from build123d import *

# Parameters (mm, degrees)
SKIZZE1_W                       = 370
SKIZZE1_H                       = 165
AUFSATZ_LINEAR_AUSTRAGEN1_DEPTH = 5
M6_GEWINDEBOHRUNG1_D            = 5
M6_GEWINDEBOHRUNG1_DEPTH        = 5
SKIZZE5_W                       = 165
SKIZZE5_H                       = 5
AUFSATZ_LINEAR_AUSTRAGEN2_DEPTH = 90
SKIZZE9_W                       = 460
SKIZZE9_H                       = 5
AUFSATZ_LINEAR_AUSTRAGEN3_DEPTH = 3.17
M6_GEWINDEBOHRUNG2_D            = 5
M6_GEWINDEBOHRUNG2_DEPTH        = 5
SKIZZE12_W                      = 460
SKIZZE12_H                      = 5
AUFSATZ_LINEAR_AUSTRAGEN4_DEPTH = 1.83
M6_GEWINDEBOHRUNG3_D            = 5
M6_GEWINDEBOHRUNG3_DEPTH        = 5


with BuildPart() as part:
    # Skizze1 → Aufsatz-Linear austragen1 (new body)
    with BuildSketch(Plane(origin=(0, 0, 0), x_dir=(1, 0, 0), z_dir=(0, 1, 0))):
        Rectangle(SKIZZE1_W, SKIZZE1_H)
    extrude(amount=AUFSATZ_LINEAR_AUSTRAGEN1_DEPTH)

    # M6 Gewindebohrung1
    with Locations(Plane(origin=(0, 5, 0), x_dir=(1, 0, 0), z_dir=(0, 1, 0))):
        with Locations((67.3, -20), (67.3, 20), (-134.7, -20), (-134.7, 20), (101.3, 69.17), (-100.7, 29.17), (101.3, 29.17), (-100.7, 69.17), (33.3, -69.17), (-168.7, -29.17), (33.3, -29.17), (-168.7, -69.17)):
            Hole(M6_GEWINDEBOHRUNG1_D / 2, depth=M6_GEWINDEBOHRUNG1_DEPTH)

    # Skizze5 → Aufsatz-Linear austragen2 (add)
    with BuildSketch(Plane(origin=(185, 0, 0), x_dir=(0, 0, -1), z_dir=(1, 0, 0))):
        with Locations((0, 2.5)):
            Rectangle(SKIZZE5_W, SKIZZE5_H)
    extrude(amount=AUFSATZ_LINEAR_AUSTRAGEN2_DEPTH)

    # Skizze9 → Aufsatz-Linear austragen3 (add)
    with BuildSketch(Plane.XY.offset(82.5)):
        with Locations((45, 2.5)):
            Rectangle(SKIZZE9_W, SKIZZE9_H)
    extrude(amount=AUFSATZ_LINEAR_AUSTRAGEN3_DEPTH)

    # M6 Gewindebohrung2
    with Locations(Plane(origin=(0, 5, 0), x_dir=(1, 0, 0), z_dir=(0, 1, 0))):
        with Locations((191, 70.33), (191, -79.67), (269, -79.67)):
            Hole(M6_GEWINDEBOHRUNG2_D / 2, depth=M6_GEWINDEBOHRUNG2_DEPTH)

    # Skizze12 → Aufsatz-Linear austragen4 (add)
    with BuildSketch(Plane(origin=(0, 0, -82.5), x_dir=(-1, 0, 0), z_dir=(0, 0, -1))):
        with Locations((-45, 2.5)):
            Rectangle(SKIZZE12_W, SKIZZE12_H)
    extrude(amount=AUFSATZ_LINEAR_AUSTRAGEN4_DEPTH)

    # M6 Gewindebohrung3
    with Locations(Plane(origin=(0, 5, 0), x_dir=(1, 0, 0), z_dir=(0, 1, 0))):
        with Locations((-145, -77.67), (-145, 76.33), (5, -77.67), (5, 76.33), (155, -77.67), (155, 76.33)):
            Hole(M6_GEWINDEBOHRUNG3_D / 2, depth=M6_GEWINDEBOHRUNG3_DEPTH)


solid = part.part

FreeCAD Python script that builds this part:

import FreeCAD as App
import Part
import Sketcher
Q = App.Units.Quantity


def add_polygon(sketch, points):
    """Adds a closed chain of lines whose ends are joined by coincident constraints."""
    first, n = sketch.GeometryCount, len(points)
    for a, b in zip(points, points[1:] + points[:1]):
        sketch.addGeometry(Part.LineSegment(App.Vector(*a, 0), App.Vector(*b, 0)), False)
    for i in range(n):
        sketch.addConstraint(Sketcher.Constraint("Coincident", first + i, 2, first + (i + 1) % n, 1))

doc = App.newDocument("Part")
params = doc.addObject("Spreadsheet::Sheet", "Params")
for row, (alias, value) in enumerate([
    ("sketch1_width", "370 mm"),
    ("sketch1_height", "165 mm"),
    ("pad1_length", "5 mm"),
    ("sketch2_diameter", "5 mm"),
    ("hole_diameter", "5 mm"),
    ("hole_depth", "5 mm"),
    ("sketch3_width", "5 mm"),
    ("sketch3_height", "165 mm"),
    ("pad2_length", "90 mm"),
    ("sketch4_width", "460 mm"),
    ("sketch4_height", "5 mm"),
    ("pad3_length", "3.17 mm"),
    ("sketch5_diameter", "5 mm"),
    ("hole2_diameter", "5 mm"),
    ("hole2_depth", "5 mm"),
    ("sketch6_width", "460 mm"),
    ("sketch6_height", "5 mm"),
    ("pad4_length", "1.83 mm"),
    ("sketch7_diameter", "5 mm"),
    ("hole3_diameter", "5 mm"),
    ("hole3_depth", "5 mm"),
], start=1):
    params.set(f"A{row}", alias)
    params.set(f"B{row}", "=" + value)
    params.setAlias(f"B{row}", alias)

body = doc.addObject("PartDesign::Body", "Body")

# Sketch on XZ plane
sketch1 = body.newObject("Sketcher::SketchObject", "Sketch")
sketch1.AttachmentSupport = (doc.getObject("XZ_Plane"), [""])
sketch1.MapMode = "FlatFace"
add_polygon(sketch1, [(-185, -82), (-185, 82), (185, 82), (185, -82)])  # lines 0-3
sketch1.addConstraint([
    Sketcher.Constraint("Vertical", 0),
    Sketcher.Constraint("Horizontal", 1),
    Sketcher.Constraint("Vertical", 2),
    Sketcher.Constraint("Horizontal", 3),
    Sketcher.Constraint("Symmetric", 0, 2, 2, 2, -1, 1),
    Sketcher.Constraint("DistanceX", 1, 1, 1, 2, Q("370 mm")),
    Sketcher.Constraint("DistanceY", 0, 1, 0, 2, Q("165 mm")),
])
sketch1.setExpression("Constraints[9]", "Params.sketch1_width")
sketch1.setExpression("Constraints[10]", "Params.sketch1_height")
pad1 = body.newObject("PartDesign::Pad", "Pad")
pad1.Profile = sketch1
pad1.setExpression("Length", "Params.pad1_length")
pad1.Reversed = True

# Sketch on XZ plane
sketch2 = body.newObject("Sketcher::SketchObject", "Sketch001")
sketch2.AttachmentSupport = (doc.getObject("XZ_Plane"), [""])
sketch2.MapMode = "FlatFace"
sketch2.AttachmentOffset = App.Placement(App.Vector(0, 0, -5), App.Rotation())
sketch2.addGeometry([
    Part.Circle(App.Vector(67.3, 20, 0), App.Vector(0, 0, 1), 2.5),  # 0
    Part.Circle(App.Vector(67.3, -20, 0), App.Vector(0, 0, 1), 2.5),  # 1
    Part.Circle(App.Vector(-134.7, 20, 0), App.Vector(0, 0, 1), 2.5),  # 2
    Part.Circle(App.Vector(-134.7, -20, 0), App.Vector(0, 0, 1), 2.5),  # 3
    Part.Circle(App.Vector(101.3, -69.2, 0), App.Vector(0, 0, 1), 2.5),  # 4
    Part.Circle(App.Vector(-100.7, -29.2, 0), App.Vector(0, 0, 1), 2.5),  # 5
    Part.Circle(App.Vector(101.3, -29.2, 0), App.Vector(0, 0, 1), 2.5),  # 6
    Part.Circle(App.Vector(-100.7, -69.2, 0), App.Vector(0, 0, 1), 2.5),  # 7
    Part.Circle(App.Vector(33.3, 69.2, 0), App.Vector(0, 0, 1), 2.5),  # 8
    Part.Circle(App.Vector(-168.7, 29.2, 0), App.Vector(0, 0, 1), 2.5),  # 9
    Part.Circle(App.Vector(33.3, 29.2, 0), App.Vector(0, 0, 1), 2.5),  # 10
    Part.Circle(App.Vector(-168.7, 69.2, 0), App.Vector(0, 0, 1), 2.5),  # 11
], False)
sketch2.addConstraint([
    Sketcher.Constraint("Equal", 0, 1),
    Sketcher.Constraint("Equal", 1, 2),
    Sketcher.Constraint("Equal", 2, 3),
    Sketcher.Constraint("Equal", 3, 4),
    Sketcher.Constraint("Equal", 4, 5),
    Sketcher.Constraint("Equal", 5, 6),
    Sketcher.Constraint("Equal", 6, 7),
    Sketcher.Constraint("Equal", 7, 8),
    Sketcher.Constraint("Equal", 8, 9),
    Sketcher.Constraint("Equal", 9, 10),
    Sketcher.Constraint("Equal", 10, 11),
    Sketcher.Constraint("Symmetric", 0, 3, 1, 3, -1),
    Sketcher.Constraint("Symmetric", 2, 3, 3, 3, -1),
    Sketcher.Constraint("Horizontal", 0, 3, 2, 3),
    Sketcher.Constraint("Horizontal", 5, 3, 6, 3),
    Sketcher.Constraint("Horizontal", 4, 3, 7, 3),
    Sketcher.Constraint("Horizontal", 9, 3, 10, 3),
    Sketcher.Constraint("Horizontal", 8, 3, 11, 3),
    Sketcher.Constraint("Vertical", 4, 3, 6, 3),
    Sketcher.Constraint("Vertical", 5, 3, 7, 3),
    Sketcher.Constraint("Vertical", 8, 3, 10, 3),
    Sketcher.Constraint("Vertical", 9, 3, 11, 3),
    Sketcher.Constraint("Diameter", 0, Q("5 mm")),
    Sketcher.Constraint("DistanceY", -1, 1, 0, 3, Q("20 mm")),
    Sketcher.Constraint("DistanceX", 2, 3, 0, 3, Q("202 mm")),
    Sketcher.Constraint("DistanceX", 1, 3, 4, 3, Q("34 mm")),
    Sketcher.Constraint("DistanceX", 3, 3, 5, 3, Q("34 mm")),
    Sketcher.Constraint("DistanceY", 4, 3, 5, 3, Q("40 mm")),
    Sketcher.Constraint("DistanceX", 8, 3, 0, 3, Q("34 mm")),
    Sketcher.Constraint("DistanceX", 9, 3, 2, 3, Q("34 mm")),
    Sketcher.Constraint("DistanceY", 9, 3, 8, 3, Q("40 mm")),
    Sketcher.Constraint("DistanceX", -1, 1, 0, 3, Q("67.3 mm")),
    Sketcher.Constraint("DistanceY", 4, 3, -1, 1, Q("69.17 mm")),
    Sketcher.Constraint("DistanceY", -1, 1, 8, 3, Q("69.17 mm")),
])
sketch2.setExpression("Constraints[22]", "Params.sketch2_diameter")
doc.recompute()
hole = body.newObject("PartDesign::Hole", "Hole")
hole.Profile = sketch2
hole.ThreadType = "None"
hole.setExpression("Diameter", "Params.hole_diameter")
hole.DepthType = "Dimension"
hole.setExpression("Depth", "Params.hole_depth")
hole.DrillPoint = "Flat"
hole.Reversed = True

# Sketch on YZ plane
sketch3 = body.newObject("Sketcher::SketchObject", "Sketch002")
sketch3.AttachmentSupport = (doc.getObject("YZ_Plane"), [""])
sketch3.MapMode = "FlatFace"
sketch3.AttachmentOffset = App.Placement(App.Vector(0, 0, 185), App.Rotation())
add_polygon(sketch3, [(5, 82), (0, 82), (0, -82), (5, -82)])  # lines 0-3
sketch3.addConstraint([
    Sketcher.Constraint("Horizontal", 0),
    Sketcher.Constraint("Vertical", 1),
    Sketcher.Constraint("Horizontal", 2),
    Sketcher.Constraint("Vertical", 3),
    Sketcher.Constraint("Symmetric", 0, 2, 1, 2, -1, 1),
    Sketcher.Constraint("DistanceX", 0, 2, 0, 1, Q("5 mm")),
    Sketcher.Constraint("DistanceY", 1, 2, 1, 1, Q("165 mm")),
])
sketch3.setExpression("Constraints[9]", "Params.sketch3_width")
sketch3.setExpression("Constraints[10]", "Params.sketch3_height")
pad2 = body.newObject("PartDesign::Pad", "Pad001")
pad2.Profile = sketch3
pad2.setExpression("Length", "Params.pad2_length")

# Sketch on XY plane
sketch4 = body.newObject("Sketcher::SketchObject", "Sketch003")
sketch4.AttachmentSupport = (doc.getObject("XY_Plane"), [""])
sketch4.MapMode = "FlatFace"
sketch4.AttachmentOffset = App.Placement(App.Vector(0, 0, 82.5), App.Rotation())
add_polygon(sketch4, [(-185, 5), (-185, 0), (275, 0), (275, 5)])  # lines 0-3
sketch4.addConstraint([
    Sketcher.Constraint("Vertical", 0),
    Sketcher.Constraint("Horizontal", 1),
    Sketcher.Constraint("Vertical", 2),
    Sketcher.Constraint("Horizontal", 3),
    Sketcher.Constraint("PointOnObject", 0, 2, -1),
    Sketcher.Constraint("DistanceX", 1, 1, 1, 2, Q("460 mm")),
    Sketcher.Constraint("DistanceY", 0, 2, 0, 1, Q("5 mm")),
    Sketcher.Constraint("DistanceX", 0, 2, -1, 1, Q("185 mm")),
])
sketch4.setExpression("Constraints[9]", "Params.sketch4_width")
sketch4.setExpression("Constraints[10]", "Params.sketch4_height")
pad3 = body.newObject("PartDesign::Pad", "Pad002")
pad3.Profile = sketch4
pad3.setExpression("Length", "Params.pad3_length")

# Sketch on XZ plane
sketch5 = body.newObject("Sketcher::SketchObject", "Sketch004")
sketch5.AttachmentSupport = (doc.getObject("XZ_Plane"), [""])
sketch5.MapMode = "FlatFace"
sketch5.AttachmentOffset = App.Placement(App.Vector(0, 0, -5), App.Rotation())
sketch5.addGeometry([
    Part.Circle(App.Vector(191, -70.3, 0), App.Vector(0, 0, 1), 2.5),
    Part.Circle(App.Vector(191, 79.7, 0), App.Vector(0, 0, 1), 2.5),
    Part.Circle(App.Vector(269, 79.7, 0), App.Vector(0, 0, 1), 2.5),
], False)
sketch5.addConstraint([
    Sketcher.Constraint("Equal", 0, 1),
    Sketcher.Constraint("Equal", 1, 2),
    Sketcher.Constraint("Horizontal", 1, 3, 2, 3),
    Sketcher.Constraint("Vertical", 0, 3, 1, 3),
    Sketcher.Constraint("Diameter", 0, Q("5 mm")),
    Sketcher.Constraint("DistanceX", -1, 1, 0, 3, Q("191 mm")),
    Sketcher.Constraint("DistanceX", -1, 1, 2, 3, Q("269 mm")),
    Sketcher.Constraint("DistanceY", 0, 3, 1, 3, Q("150 mm")),
    Sketcher.Constraint("DistanceY", 0, 3, -1, 1, Q("70.33 mm")),
])
sketch5.setExpression("Constraints[4]", "Params.sketch5_diameter")
doc.recompute()
hole2 = body.newObject("PartDesign::Hole", "Hole001")
hole2.Profile = sketch5
hole2.ThreadType = "None"
hole2.setExpression("Diameter", "Params.hole2_diameter")
hole2.DepthType = "Dimension"
hole2.setExpression("Depth", "Params.hole2_depth")
hole2.DrillPoint = "Flat"
hole2.Reversed = True

# Sketch on XY plane
sketch6 = body.newObject("Sketcher::SketchObject", "Sketch005")
sketch6.AttachmentSupport = (doc.getObject("XY_Plane"), [""])
sketch6.MapMode = "FlatFace"
sketch6.AttachmentOffset = App.Placement(App.Vector(0, 0, -82.5), App.Rotation())
add_polygon(sketch6, [(275, 5), (275, 0), (-185, 0), (-185, 5)])  # lines 0-3
sketch6.addConstraint([
    Sketcher.Constraint("Vertical", 0),
    Sketcher.Constraint("Horizontal", 1),
    Sketcher.Constraint("Vertical", 2),
    Sketcher.Constraint("Horizontal", 3),
    Sketcher.Constraint("PointOnObject", 0, 2, -1),
    Sketcher.Constraint("DistanceX", 1, 2, 1, 1, Q("460 mm")),
    Sketcher.Constraint("DistanceY", 0, 2, 0, 1, Q("5 mm")),
    Sketcher.Constraint("DistanceX", -1, 1, 0, 2, Q("275 mm")),
])
sketch6.setExpression("Constraints[9]", "Params.sketch6_width")
sketch6.setExpression("Constraints[10]", "Params.sketch6_height")
pad4 = body.newObject("PartDesign::Pad", "Pad003")
pad4.Profile = sketch6
pad4.setExpression("Length", "Params.pad4_length")
pad4.Reversed = True

# Sketch on XZ plane
sketch7 = body.newObject("Sketcher::SketchObject", "Sketch006")
sketch7.AttachmentSupport = (doc.getObject("XZ_Plane"), [""])
sketch7.MapMode = "FlatFace"
sketch7.AttachmentOffset = App.Placement(App.Vector(0, 0, -5), App.Rotation())
sketch7.addGeometry([
    Part.Circle(App.Vector(-145, 77.7, 0), App.Vector(0, 0, 1), 2.5),  # 0
    Part.Circle(App.Vector(-145, -76.3, 0), App.Vector(0, 0, 1), 2.5),  # 1
    Part.Circle(App.Vector(5, 77.7, 0), App.Vector(0, 0, 1), 2.5),  # 2
    Part.Circle(App.Vector(5, -76.3, 0), App.Vector(0, 0, 1), 2.5),  # 3
    Part.Circle(App.Vector(155, 77.7, 0), App.Vector(0, 0, 1), 2.5),  # 4
    Part.Circle(App.Vector(155, -76.3, 0), App.Vector(0, 0, 1), 2.5),  # 5
], False)
sketch7.addConstraint([
    Sketcher.Constraint("Equal", 0, 1),
    Sketcher.Constraint("Equal", 1, 2),
    Sketcher.Constraint("Equal", 2, 3),
    Sketcher.Constraint("Equal", 3, 4),
    Sketcher.Constraint("Equal", 4, 5),
    Sketcher.Constraint("Horizontal", 0, 3, 2, 3),
    Sketcher.Constraint("Horizontal", 1, 3, 3, 3),
    Sketcher.Constraint("Horizontal", 2, 3, 4, 3),
    Sketcher.Constraint("Horizontal", 3, 3, 5, 3),
    Sketcher.Constraint("Vertical", 0, 3, 1, 3),
    Sketcher.Constraint("Vertical", 2, 3, 3, 3),
    Sketcher.Constraint("Vertical", 4, 3, 5, 3),
    Sketcher.Constraint("Diameter", 0, Q("5 mm")),
    Sketcher.Constraint("DistanceX", 0, 3, -1, 1, Q("145 mm")),
    Sketcher.Constraint("DistanceX", -1, 1, 2, 3, Q("5 mm")),
    Sketcher.Constraint("DistanceX", -1, 1, 4, 3, Q("155 mm")),
    Sketcher.Constraint("DistanceY", 1, 3, 0, 3, Q("154 mm")),
    Sketcher.Constraint("DistanceY", -1, 1, 0, 3, Q("77.67 mm")),
])
sketch7.setExpression("Constraints[12]", "Params.sketch7_diameter")
doc.recompute()
hole3 = body.newObject("PartDesign::Hole", "Hole002")
hole3.Profile = sketch7
hole3.ThreadType = "None"
hole3.setExpression("Diameter", "Params.hole3_diameter")
hole3.DepthType = "Dimension"
hole3.setExpression("Depth", "Params.hole3_depth")
hole3.DrillPoint = "Flat"
hole3.Reversed = True

doc.recompute()
